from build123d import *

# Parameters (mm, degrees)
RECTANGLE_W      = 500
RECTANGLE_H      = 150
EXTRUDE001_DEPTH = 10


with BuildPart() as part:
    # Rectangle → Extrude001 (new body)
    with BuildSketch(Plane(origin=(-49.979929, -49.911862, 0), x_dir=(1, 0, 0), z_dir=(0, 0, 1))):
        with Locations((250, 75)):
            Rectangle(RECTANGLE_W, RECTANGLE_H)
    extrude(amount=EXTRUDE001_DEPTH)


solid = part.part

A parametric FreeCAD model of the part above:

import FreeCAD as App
import Part
import Sketcher

V = App.Vector


def add_polygon(sketch, points):
    """Adds a closed chain of lines whose ends are joined by coincident constraints."""
    first, n = sketch.GeometryCount, len(points)
    for a, b in zip(points, points[1:] + points[:1]):
        sketch.addGeometry(Part.LineSegment(App.Vector(*a, 0), App.Vector(*b, 0)), False)
    for i in range(n):
        sketch.addConstraint(Sketcher.Constraint("Coincident", first + i, 2, first + (i + 1) % n, 1))

doc = App.newDocument("Part")
body = doc.addObject("PartDesign::Body", "Body")

sketch1 = body.newObject("Sketcher::SketchObject", "Sketch")
sketch1.AttachmentSupport = (doc.getObject("XY_Plane"), [""])
sketch1.MapMode = "FlatFace"
add_polygon(sketch1, [(-49.979929, 100.088138), (-49.979929, -49.911862), (450.020071, -49.911862), (450.020071, 100.088138)])
sketch1.addConstraint([
    Sketcher.Constraint("Vertical", 0),
    Sketcher.Constraint("Horizontal", 1),
    Sketcher.Constraint("Vertical", 2),
    Sketcher.Constraint("Horizontal", 3),
    Sketcher.Constraint("DistanceX", 1, 1, 1, 2, 500.0),
    Sketcher.Constraint("DistanceY", 0, 2, 0, 1, 150.0),
    Sketcher.Constraint("DistanceX", 0, 2, -1, 1, 49.979929),
    Sketcher.Constraint("DistanceY", -1, 1, 2, 2, 100.088138),
])
pad1 = body.newObject("PartDesign::Pad", "Pad")
pad1.Profile = sketch1
pad1.Length = 10

doc.recompute()
